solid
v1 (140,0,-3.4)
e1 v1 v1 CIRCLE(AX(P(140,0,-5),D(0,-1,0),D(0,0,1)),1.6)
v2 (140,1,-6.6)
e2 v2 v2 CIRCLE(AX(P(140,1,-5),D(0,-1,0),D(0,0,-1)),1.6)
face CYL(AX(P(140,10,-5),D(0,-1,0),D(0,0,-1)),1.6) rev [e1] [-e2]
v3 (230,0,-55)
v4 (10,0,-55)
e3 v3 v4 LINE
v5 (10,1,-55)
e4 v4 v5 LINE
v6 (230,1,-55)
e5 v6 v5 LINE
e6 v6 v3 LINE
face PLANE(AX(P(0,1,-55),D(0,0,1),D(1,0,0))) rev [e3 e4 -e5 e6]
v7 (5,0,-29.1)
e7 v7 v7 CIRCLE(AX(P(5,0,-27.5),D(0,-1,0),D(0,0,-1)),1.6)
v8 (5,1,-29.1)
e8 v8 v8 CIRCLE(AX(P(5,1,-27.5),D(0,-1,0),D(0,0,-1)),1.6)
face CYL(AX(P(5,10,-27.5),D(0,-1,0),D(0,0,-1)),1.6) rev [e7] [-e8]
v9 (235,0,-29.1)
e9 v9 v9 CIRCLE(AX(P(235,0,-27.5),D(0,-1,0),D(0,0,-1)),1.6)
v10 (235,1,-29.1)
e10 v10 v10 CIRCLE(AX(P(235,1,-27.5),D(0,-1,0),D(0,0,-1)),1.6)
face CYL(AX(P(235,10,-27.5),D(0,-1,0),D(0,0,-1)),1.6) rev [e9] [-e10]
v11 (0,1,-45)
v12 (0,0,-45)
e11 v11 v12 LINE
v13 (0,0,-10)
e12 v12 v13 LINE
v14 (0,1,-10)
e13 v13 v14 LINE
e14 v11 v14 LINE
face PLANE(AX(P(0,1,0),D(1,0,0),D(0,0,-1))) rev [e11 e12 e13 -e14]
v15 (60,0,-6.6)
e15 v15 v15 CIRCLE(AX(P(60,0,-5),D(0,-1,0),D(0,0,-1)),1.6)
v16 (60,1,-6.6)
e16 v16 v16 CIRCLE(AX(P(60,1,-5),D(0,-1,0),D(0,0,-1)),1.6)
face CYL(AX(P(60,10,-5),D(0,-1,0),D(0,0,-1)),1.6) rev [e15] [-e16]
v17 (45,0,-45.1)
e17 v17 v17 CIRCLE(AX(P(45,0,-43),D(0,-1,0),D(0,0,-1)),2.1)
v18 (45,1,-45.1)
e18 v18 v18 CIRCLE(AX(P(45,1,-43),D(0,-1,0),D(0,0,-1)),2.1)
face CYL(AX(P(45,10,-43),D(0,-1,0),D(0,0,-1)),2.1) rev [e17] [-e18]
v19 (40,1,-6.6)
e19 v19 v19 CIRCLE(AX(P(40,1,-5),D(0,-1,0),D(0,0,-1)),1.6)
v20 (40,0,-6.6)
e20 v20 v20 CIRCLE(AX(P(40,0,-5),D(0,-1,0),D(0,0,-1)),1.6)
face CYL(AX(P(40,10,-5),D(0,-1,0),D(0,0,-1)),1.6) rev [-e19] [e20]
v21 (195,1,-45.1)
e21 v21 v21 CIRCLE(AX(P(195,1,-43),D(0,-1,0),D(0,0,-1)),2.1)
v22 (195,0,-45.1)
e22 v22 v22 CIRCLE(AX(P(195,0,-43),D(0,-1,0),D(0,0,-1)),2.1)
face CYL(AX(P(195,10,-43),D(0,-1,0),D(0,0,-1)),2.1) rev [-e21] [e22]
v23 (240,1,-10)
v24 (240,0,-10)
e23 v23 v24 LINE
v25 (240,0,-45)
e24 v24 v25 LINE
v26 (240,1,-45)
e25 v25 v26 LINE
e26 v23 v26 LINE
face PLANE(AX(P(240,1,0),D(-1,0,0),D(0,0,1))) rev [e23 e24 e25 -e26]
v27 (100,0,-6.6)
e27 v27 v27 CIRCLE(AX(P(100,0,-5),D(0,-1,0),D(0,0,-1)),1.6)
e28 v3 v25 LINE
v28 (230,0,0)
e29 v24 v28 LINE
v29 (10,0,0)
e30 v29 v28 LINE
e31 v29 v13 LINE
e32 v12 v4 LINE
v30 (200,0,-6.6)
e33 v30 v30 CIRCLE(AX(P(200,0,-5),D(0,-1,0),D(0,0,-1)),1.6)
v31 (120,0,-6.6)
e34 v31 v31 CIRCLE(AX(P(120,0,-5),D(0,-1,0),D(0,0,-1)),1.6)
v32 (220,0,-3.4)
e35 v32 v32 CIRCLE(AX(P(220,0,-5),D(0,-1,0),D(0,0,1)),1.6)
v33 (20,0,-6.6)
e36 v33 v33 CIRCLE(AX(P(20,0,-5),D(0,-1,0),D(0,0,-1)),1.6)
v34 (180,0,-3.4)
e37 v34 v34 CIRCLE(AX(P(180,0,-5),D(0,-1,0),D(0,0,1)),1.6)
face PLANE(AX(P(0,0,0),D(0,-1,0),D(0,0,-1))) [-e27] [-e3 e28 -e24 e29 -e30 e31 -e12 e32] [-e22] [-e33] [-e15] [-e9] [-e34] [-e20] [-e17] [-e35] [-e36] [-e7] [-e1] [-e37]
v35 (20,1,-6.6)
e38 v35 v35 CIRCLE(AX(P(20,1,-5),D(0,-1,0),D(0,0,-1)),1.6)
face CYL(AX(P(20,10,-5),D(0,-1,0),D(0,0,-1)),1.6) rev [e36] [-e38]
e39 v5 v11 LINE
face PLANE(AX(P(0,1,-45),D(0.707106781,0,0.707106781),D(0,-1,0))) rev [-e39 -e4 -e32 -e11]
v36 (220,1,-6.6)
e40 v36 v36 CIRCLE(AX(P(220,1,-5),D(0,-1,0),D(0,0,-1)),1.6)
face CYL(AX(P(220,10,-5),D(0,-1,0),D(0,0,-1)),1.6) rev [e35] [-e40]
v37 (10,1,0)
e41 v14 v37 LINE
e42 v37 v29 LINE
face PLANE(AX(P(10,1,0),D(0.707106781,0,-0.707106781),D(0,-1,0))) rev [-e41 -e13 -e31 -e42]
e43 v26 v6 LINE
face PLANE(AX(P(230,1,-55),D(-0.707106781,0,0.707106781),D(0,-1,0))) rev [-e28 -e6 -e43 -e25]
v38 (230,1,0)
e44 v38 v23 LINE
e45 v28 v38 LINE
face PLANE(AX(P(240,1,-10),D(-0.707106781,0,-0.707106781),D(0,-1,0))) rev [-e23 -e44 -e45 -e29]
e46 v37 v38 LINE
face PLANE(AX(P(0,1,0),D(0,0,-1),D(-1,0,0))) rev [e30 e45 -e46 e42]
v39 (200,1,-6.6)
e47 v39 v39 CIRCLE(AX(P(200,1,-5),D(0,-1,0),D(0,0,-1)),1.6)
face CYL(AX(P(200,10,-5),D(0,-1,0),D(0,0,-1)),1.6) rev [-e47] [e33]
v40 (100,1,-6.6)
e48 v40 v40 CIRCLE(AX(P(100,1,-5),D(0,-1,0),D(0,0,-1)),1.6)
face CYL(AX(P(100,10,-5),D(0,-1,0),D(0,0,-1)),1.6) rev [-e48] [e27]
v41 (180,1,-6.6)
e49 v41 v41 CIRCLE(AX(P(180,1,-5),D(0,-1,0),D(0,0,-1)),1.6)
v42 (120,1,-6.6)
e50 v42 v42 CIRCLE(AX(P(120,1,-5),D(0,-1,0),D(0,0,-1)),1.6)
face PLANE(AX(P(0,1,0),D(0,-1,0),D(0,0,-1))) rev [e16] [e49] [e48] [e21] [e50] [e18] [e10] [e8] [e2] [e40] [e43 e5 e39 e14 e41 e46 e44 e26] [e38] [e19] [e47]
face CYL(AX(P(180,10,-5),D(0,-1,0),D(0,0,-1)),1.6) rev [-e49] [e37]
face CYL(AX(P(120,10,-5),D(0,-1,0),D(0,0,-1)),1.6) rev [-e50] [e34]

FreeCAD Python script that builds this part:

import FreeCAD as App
import Part
import Sketcher

V = App.Vector
Q = App.Units.Quantity


def edges_at(feature, points):
    """Names of the edges that pass closest to the given points."""
    edges = feature.Shape.Edges
    near = lambda p: min(range(len(edges)), key=lambda i: edges[i].distToShape(Part.Vertex(*p))[0])
    return sorted({f"Edge{near(p) + 1}" for p in points})

doc = App.newDocument("Part")
body = doc.addObject("PartDesign::Body", "Body")

sketch1 = doc.addObject("Sketcher::SketchObject", "Sketch")
body.addObject(sketch1)
sketch1.AttachmentSupport = (doc.XZ_Plane, [""])
sketch1.MapMode = "FlatFace"
sketch1.addGeometry(Part.LineSegment(V(0, -55, 0), V(0, 0, 0)), False)
sketch1.addGeometry(Part.LineSegment(V(0, 0, 0), V(240, 0, 0)), False)
sketch1.addGeometry(Part.LineSegment(V(240, 0, 0), V(240, -55, 0)), False)
sketch1.addGeometry(Part.LineSegment(V(240, -55, 0), V(0, -55, 0)), False)
sketch1.addConstraint(Sketcher.Constraint("Coincident", 0, 2, 1, 1))
sketch1.addConstraint(Sketcher.Constraint("Coincident", 1, 2, 2, 1))
sketch1.addConstraint(Sketcher.Constraint("Coincident", 2, 2, 3, 1))
sketch1.addConstraint(Sketcher.Constraint("Coincident", 3, 2, 0, 1))
sketch1.addConstraint(Sketcher.Constraint("Vertical", 0))
sketch1.addConstraint(Sketcher.Constraint("Horizontal", 1))
sketch1.addConstraint(Sketcher.Constraint("Vertical", 2))
sketch1.addConstraint(Sketcher.Constraint("Horizontal", 3))
sketch1.addConstraint(Sketcher.Constraint("Coincident", 0, 2, -1, 1))
sketch1.addConstraint(Sketcher.Constraint("DistanceX", 1, 1, 1, 2, Q("240 mm")))
sketch1.addConstraint(Sketcher.Constraint("DistanceY", 0, 1, 0, 2, Q("55 mm")))
pad1 = doc.addObject("PartDesign::Pad", "Pad")
body.addObject(pad1)
pad1.Profile = sketch1
pad1.Length = 1
pad1.Reversed = True
doc.recompute()

chamfer = doc.addObject("PartDesign::Chamfer", "Chamfer")
body.addObject(chamfer)
chamfer.Base = (pad1, edges_at(pad1, [
    (0, 0.5, -55),
    (240, 0.5, -55),
    (240, 0.5, 0),
    (0, 0.5, 0),
]))
chamfer.Size = 10

sketch2 = doc.addObject("Sketcher::SketchObject", "Sketch001")
body.addObject(sketch2)
sketch2.AttachmentSupport = (doc.XZ_Plane, [""])
sketch2.MapMode = "FlatFace"
sketch2.addGeometry(Part.Circle(V(195, -43, 0), V(0, 0, 1), 2.1), False)
sketch2.addGeometry(Part.Circle(V(45, -43, 0), V(0, 0, 1), 2.1), False)
sketch2.addGeometry(Part.Circle(V(235, -27.5, 0), V(0, 0, 1), 1.6), False)
sketch2.addGeometry(Part.Circle(V(5, -27.5, 0), V(0, 0, 1), 1.6), False)
sketch2.addGeometry(Part.Circle(V(20, -5, 0), V(0, 0, 1), 1.6), False)
sketch2.addGeometry(Part.Circle(V(60, -5, 0), V(0, 0, 1), 1.6), False)
sketch2.addGeometry(Part.Circle(V(100, -5, 0), V(0, 0, 1), 1.6), False)
sketch2.addGeometry(Part.Circle(V(140, -5, 0), V(0, 0, 1), 1.6), False)
sketch2.addGeometry(Part.Circle(V(180, -5, 0), V(0, 0, 1), 1.6), False)
sketch2.addGeometry(Part.Circle(V(220, -5, 0), V(0, 0, 1), 1.6), False)
sketch2.addGeometry(Part.Circle(V(40, -5, 0), V(0, 0, 1), 1.6), False)
sketch2.addGeometry(Part.Circle(V(120, -5, 0), V(0, 0, 1), 1.6), False)
sketch2.addGeometry(Part.Circle(V(200, -5, 0), V(0, 0, 1), 1.6), False)
sketch2.addConstraint(Sketcher.Constraint("Equal", 0, 1))
sketch2.addConstraint(Sketcher.Constraint("Equal", 2, 3))
sketch2.addConstraint(Sketcher.Constraint("Equal", 3, 4))
sketch2.addConstraint(Sketcher.Constraint("Equal", 4, 5))
sketch2.addConstraint(Sketcher.Constraint("Equal", 5, 6))
sketch2.addConstraint(Sketcher.Constraint("Equal", 6, 7))
sketch2.addConstraint(Sketcher.Constraint("Equal", 7, 8))
sketch2.addConstraint(Sketcher.Constraint("Equal", 8, 9))
sketch2.addConstraint(Sketcher.Constraint("Equal", 9, 10))
sketch2.addConstraint(Sketcher.Constraint("Equal", 10, 11))
sketch2.addConstraint(Sketcher.Constraint("Equal", 11, 12))
sketch2.addConstraint(Sketcher.Constraint("Horizontal", 0, 3, 1, 3))
sketch2.addConstraint(Sketcher.Constraint("Horizontal", 2, 3, 3, 3))
sketch2.addConstraint(Sketcher.Constraint("Horizontal", 4, 3, 5, 3))
sketch2.addConstraint(Sketcher.Constraint("Horizontal", 5, 3, 6, 3))
sketch2.addConstraint(Sketcher.Constraint("Horizontal", 6, 3, 7, 3))
sketch2.addConstraint(Sketcher.Constraint("Horizontal", 7, 3, 8, 3))
sketch2.addConstraint(Sketcher.Constraint("Horizontal", 8, 3, 9, 3))
sketch2.addConstraint(Sketcher.Constraint("Horizontal", 9, 3, 10, 3))
sketch2.addConstraint(Sketcher.Constraint("Horizontal", 10, 3, 11, 3))
sketch2.addConstraint(Sketcher.Constraint("Horizontal", 11, 3, 12, 3))
sketch2.addConstraint(Sketcher.Constraint("Diameter", 0, Q("4.2 mm")))
sketch2.addConstraint(Sketcher.Constraint("Diameter", 2, Q("3.2 mm")))
sketch2.addConstraint(Sketcher.Constraint("DistanceX", -1, 1, 0, 3, Q("195 mm")))
sketch2.addConstraint(Sketcher.Constraint("DistanceY", 0, 3, -1, 1, Q("43 mm")))
sketch2.addConstraint(Sketcher.Constraint("DistanceX", -1, 1, 1, 3, Q("45 mm")))
sketch2.addConstraint(Sketcher.Constraint("DistanceX", -1, 1, 2, 3, Q("235 mm")))
sketch2.addConstraint(Sketcher.Constraint("DistanceX", -1, 1, 3, 3, Q("5 mm")))
sketch2.addConstraint(Sketcher.Constraint("DistanceX", -1, 1, 4, 3, Q("20 mm")))
sketch2.addConstraint(Sketcher.Constraint("DistanceY", 4, 3, -1, 1, Q("5 mm")))
sketch2.addConstraint(Sketcher.Constraint("DistanceX", -1, 1, 5, 3, Q("60 mm")))
sketch2.addConstraint(Sketcher.Constraint("DistanceX", -1, 1, 6, 3, Q("100 mm")))
sketch2.addConstraint(Sketcher.Constraint("DistanceX", -1, 1, 7, 3, Q("140 mm")))
sketch2.addConstraint(Sketcher.Constraint("DistanceX", -1, 1, 8, 3, Q("180 mm")))
sketch2.addConstraint(Sketcher.Constraint("DistanceX", -1, 1, 9, 3, Q("220 mm")))
sketch2.addConstraint(Sketcher.Constraint("DistanceX", -1, 1, 10, 3, Q("40 mm")))
sketch2.addConstraint(Sketcher.Constraint("DistanceX", -1, 1, 11, 3, Q("120 mm")))
sketch2.addConstraint(Sketcher.Constraint("DistanceX", -1, 1, 12, 3, Q("200 mm")))
sketch2.addConstraint(Sketcher.Constraint("DistanceY", 2, 3, -1, 1, Q("27.5 mm")))
pocket1 = doc.addObject("PartDesign::Pocket", "Pocket")
body.addObject(pocket1)
pocket1.Profile = sketch2
pocket1.Length = 10

doc.recompute()
